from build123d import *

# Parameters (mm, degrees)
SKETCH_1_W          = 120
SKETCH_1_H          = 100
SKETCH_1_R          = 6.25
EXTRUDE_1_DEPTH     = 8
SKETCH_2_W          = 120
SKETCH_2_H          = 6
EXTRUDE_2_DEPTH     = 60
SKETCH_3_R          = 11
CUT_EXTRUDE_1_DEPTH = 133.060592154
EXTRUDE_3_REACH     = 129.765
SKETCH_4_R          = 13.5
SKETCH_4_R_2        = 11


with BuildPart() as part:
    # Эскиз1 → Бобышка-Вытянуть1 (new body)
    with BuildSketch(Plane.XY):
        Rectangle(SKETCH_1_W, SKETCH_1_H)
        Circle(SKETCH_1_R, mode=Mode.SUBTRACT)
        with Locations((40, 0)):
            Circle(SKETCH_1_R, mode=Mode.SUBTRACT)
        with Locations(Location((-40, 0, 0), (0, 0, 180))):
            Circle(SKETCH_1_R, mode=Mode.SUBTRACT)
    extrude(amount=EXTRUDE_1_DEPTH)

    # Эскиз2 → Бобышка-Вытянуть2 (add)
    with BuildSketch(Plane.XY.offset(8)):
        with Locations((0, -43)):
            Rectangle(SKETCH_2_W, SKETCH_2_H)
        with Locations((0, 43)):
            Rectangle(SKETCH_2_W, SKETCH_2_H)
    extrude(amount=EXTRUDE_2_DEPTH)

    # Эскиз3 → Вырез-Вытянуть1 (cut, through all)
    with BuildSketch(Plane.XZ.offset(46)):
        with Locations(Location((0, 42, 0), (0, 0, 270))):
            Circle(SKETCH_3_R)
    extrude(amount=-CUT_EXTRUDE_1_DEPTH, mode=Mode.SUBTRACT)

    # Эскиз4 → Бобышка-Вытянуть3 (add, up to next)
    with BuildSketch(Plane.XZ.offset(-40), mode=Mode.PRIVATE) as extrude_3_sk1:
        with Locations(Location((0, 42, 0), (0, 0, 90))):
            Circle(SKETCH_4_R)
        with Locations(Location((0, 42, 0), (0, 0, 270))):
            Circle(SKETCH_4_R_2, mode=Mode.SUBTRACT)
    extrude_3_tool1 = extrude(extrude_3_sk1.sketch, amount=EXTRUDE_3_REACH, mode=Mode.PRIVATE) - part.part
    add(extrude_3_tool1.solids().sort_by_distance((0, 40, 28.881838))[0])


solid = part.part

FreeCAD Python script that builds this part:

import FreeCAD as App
import Part
import Sketcher

V = App.Vector

doc = App.newDocument("Part")
params = doc.addObject("Spreadsheet::Sheet", "Params")
for row, (alias, value) in enumerate([
    ("sketch1_diameter", "12.5 mm"),
    ("sketch1_width", "120 mm"),
    ("sketch1_height", "100 mm"),
    ("pad1_length", "8 mm"),
    ("sketch2_width", "120 mm"),
    ("sketch2_height", "6 mm"),
    ("pad2_length", "60 mm"),
    ("sketch3_diameter", "22 mm"),
    ("sketch4_diameter", "27 mm"),
    ("sketch4_diameter2", "22 mm"),
    ("pad3_length", "80 mm"),
], start=1):
    params.set(f"A{row}", alias)
    params.set(f"B{row}", "=" + value)
    params.setAlias(f"B{row}", alias)

body = doc.addObject("PartDesign::Body", "Body")

sketch1 = body.newObject("Sketcher::SketchObject", "Sketch")
sketch1.AttachmentSupport = (doc.getObject("XY_Plane"), [""])
sketch1.MapMode = "FlatFace"
sketch1.addGeometry(Part.LineSegment(V(-60, 50, 0), V(-60, -50, 0)), False)
sketch1.addGeometry(Part.LineSegment(V(-60, -50, 0), V(60, -50, 0)), False)
sketch1.addGeometry(Part.LineSegment(V(60, -50, 0), V(60, 50, 0)), False)
sketch1.addGeometry(Part.LineSegment(V(60, 50, 0), V(-60, 50, 0)), False)
sketch1.addGeometry(Part.Circle(V(-40, 0, 0), V(0, 0, 1), 6.25), False)
sketch1.addGeometry(Part.Circle(V(0, 0, 0), V(0, 0, 1), 6.25), False)
sketch1.addGeometry(Part.Circle(V(40, 0, 0), V(0, 0, 1), 6.25), False)
sketch1.addConstraint(Sketcher.Constraint("Coincident", 0, 2, 1, 1))
sketch1.addConstraint(Sketcher.Constraint("Coincident", 1, 2, 2, 1))
sketch1.addConstraint(Sketcher.Constraint("Coincident", 2, 2, 3, 1))
sketch1.addConstraint(Sketcher.Constraint("Coincident", 3, 2, 0, 1))
sketch1.addConstraint(Sketcher.Constraint("Vertical", 0))
sketch1.addConstraint(Sketcher.Constraint("Horizontal", 1))
sketch1.addConstraint(Sketcher.Constraint("Vertical", 2))
sketch1.addConstraint(Sketcher.Constraint("Horizontal", 3))
sketch1.addConstraint(Sketcher.Constraint("Coincident", 5, 3, -1, 1))
sketch1.addConstraint(Sketcher.Constraint("Equal", 4, 5))
sketch1.addConstraint(Sketcher.Constraint("Equal", 5, 6))
sketch1.addConstraint(Sketcher.Constraint("Symmetric", 4, 3, 6, 3, -1, 1))
sketch1.addConstraint(Sketcher.Constraint("Symmetric", 0, 2, 2, 2, -1, 1))
sketch1.addConstraint(Sketcher.Constraint("PointOnObject", 4, 3, -1))
sketch1.addConstraint(Sketcher.Constraint("Diameter", 4, 12.5))
sketch1.addConstraint(Sketcher.Constraint("DistanceX", 1, 1, 1, 2, 120.0))
sketch1.addConstraint(Sketcher.Constraint("DistanceY", 0, 2, 0, 1, 100.0))
sketch1.addConstraint(Sketcher.Constraint("DistanceX", 4, 3, -1, 1, 40.0))
sketch1.setExpression("Constraints[14]", "Params.sketch1_diameter")
sketch1.setExpression("Constraints[15]", "Params.sketch1_width")
sketch1.setExpression("Constraints[16]", "Params.sketch1_height")
pad1 = body.newObject("PartDesign::Pad", "Pad")
pad1.Profile = sketch1
pad1.setExpression("Length", "Params.pad1_length")

sketch2 = body.newObject("Sketcher::SketchObject", "Sketch001")
sketch2.AttachmentSupport = (doc.getObject("XY_Plane"), [""])
sketch2.MapMode = "FlatFace"
sketch2.AttachmentOffset = App.Placement(V(0, 0, 8), App.Rotation())
sketch2.addGeometry(Part.LineSegment(V(-60, -40, 0), V(-60, -46, 0)), False)
sketch2.addGeometry(Part.LineSegment(V(-60, -46, 0), V(60, -46, 0)), False)
sketch2.addGeometry(Part.LineSegment(V(60, -46, 0), V(60, -40, 0)), False)
sketch2.addGeometry(Part.LineSegment(V(60, -40, 0), V(-60, -40, 0)), False)
sketch2.addGeometry(Part.LineSegment(V(-60, 46, 0), V(-60, 40, 0)), False)
sketch2.addGeometry(Part.LineSegment(V(-60, 40, 0), V(60, 40, 0)), False)
sketch2.addGeometry(Part.LineSegment(V(60, 40, 0), V(60, 46, 0)), False)
sketch2.addGeometry(Part.LineSegment(V(60, 46, 0), V(-60, 46, 0)), False)
sketch2.addConstraint(Sketcher.Constraint("Coincident", 0, 2, 1, 1))
sketch2.addConstraint(Sketcher.Constraint("Coincident", 1, 2, 2, 1))
sketch2.addConstraint(Sketcher.Constraint("Coincident", 2, 2, 3, 1))
sketch2.addConstraint(Sketcher.Constraint("Coincident", 3, 2, 0, 1))
sketch2.addConstraint(Sketcher.Constraint("Coincident", 4, 2, 5, 1))
sketch2.addConstraint(Sketcher.Constraint("Coincident", 5, 2, 6, 1))
sketch2.addConstraint(Sketcher.Constraint("Coincident", 6, 2, 7, 1))
sketch2.addConstraint(Sketcher.Constraint("Coincident", 7, 2, 4, 1))
sketch2.addConstraint(Sketcher.Constraint("Vertical", 0))
sketch2.addConstraint(Sketcher.Constraint("Horizontal", 1))
sketch2.addConstraint(Sketcher.Constraint("Vertical", 2))
sketch2.addConstraint(Sketcher.Constraint("Horizontal", 3))
sketch2.addConstraint(Sketcher.Constraint("Vertical", 4))
sketch2.addConstraint(Sketcher.Constraint("Horizontal", 5))
sketch2.addConstraint(Sketcher.Constraint("Vertical", 6))
sketch2.addConstraint(Sketcher.Constraint("Horizontal", 7))
sketch2.addConstraint(Sketcher.Constraint("Symmetric", 2, 2, 4, 2, -1, 1))
sketch2.addConstraint(Sketcher.Constraint("Symmetric", 0, 2, 6, 2, -1, 1))
sketch2.addConstraint(Sketcher.Constraint("Vertical", 3, 2, 4, 2))
sketch2.addConstraint(Sketcher.Constraint("DistanceX", 1, 1, 1, 2, 120.0))
sketch2.addConstraint(Sketcher.Constraint("DistanceY", 0, 2, 0, 1, 6.0))
sketch2.addConstraint(Sketcher.Constraint("DistanceY", 0, 2, -1, 1, 46.0))
sketch2.setExpression("Constraints[19]", "Params.sketch2_width")
sketch2.setExpression("Constraints[20]", "Params.sketch2_height")
pad2 = body.newObject("PartDesign::Pad", "Pad001")
pad2.Profile = sketch2
pad2.setExpression("Length", "Params.pad2_length")

sketch3 = body.newObject("Sketcher::SketchObject", "Sketch002")
sketch3.AttachmentSupport = (doc.getObject("XZ_Plane"), [""])
sketch3.MapMode = "FlatFace"
sketch3.AttachmentOffset = App.Placement(V(0, 0, 46), App.Rotation())
sketch3.addGeometry(Part.Circle(V(0, 42, 0), V(0, 0, 1), 11), False)
sketch3.addConstraint(Sketcher.Constraint("PointOnObject", 0, 3, -2))
sketch3.addConstraint(Sketcher.Constraint("Diameter", 0, 22.0))
sketch3.addConstraint(Sketcher.Constraint("DistanceY", -1, 1, 0, 3, 42.0))
sketch3.setExpression("Constraints[1]", "Params.sketch3_diameter")
pocket1 = body.newObject("PartDesign::Pocket", "Pocket")
pocket1.Profile = sketch3
pocket1.Type = "ThroughAll"

sketch4 = body.newObject("Sketcher::SketchObject", "Sketch003")
sketch4.AttachmentSupport = (doc.getObject("XZ_Plane"), [""])
sketch4.MapMode = "FlatFace"
sketch4.AttachmentOffset = App.Placement(V(0, 0, -40), App.Rotation())
sketch4.addGeometry(Part.Circle(V(0, 42, 0), V(0, 0, 1), 13.5), False)
sketch4.addGeometry(Part.Circle(V(0, 42, 0), V(0, 0, 1), 11), False)
sketch4.addConstraint(Sketcher.Constraint("Coincident", 1, 3, 0, 3))
sketch4.addConstraint(Sketcher.Constraint("PointOnObject", 0, 3, -2))
sketch4.addConstraint(Sketcher.Constraint("Diameter", 0, 27.0))
sketch4.addConstraint(Sketcher.Constraint("Diameter", 1, 22.0))
sketch4.addConstraint(Sketcher.Constraint("DistanceY", -1, 1, 0, 3, 42.0))
sketch4.setExpression("Constraints[2]", "Params.sketch4_diameter")
sketch4.setExpression("Constraints[3]", "Params.sketch4_diameter2")
pad3 = body.newObject("PartDesign::Pad", "Pad002")
pad3.Profile = sketch4
pad3.setExpression("Length", "Params.pad3_length")

doc.recompute()
